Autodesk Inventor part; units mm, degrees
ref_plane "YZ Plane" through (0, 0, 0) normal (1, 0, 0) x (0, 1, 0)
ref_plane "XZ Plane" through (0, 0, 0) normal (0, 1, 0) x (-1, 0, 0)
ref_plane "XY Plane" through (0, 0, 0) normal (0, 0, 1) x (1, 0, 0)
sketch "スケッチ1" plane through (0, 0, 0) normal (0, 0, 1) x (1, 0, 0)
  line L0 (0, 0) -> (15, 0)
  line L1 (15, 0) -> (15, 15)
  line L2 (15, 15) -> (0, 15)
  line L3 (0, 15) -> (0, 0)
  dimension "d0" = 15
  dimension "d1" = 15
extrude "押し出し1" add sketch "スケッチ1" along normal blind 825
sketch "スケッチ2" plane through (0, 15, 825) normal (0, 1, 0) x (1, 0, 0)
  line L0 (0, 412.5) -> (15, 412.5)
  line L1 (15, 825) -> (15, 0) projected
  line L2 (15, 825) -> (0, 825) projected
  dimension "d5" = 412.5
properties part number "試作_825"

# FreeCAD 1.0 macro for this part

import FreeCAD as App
import Part
import Sketcher


def add_polygon(sketch, points):
    """Adds a closed chain of lines whose ends are joined by coincident constraints."""
    first, n = sketch.GeometryCount, len(points)
    for a, b in zip(points, points[1:] + points[:1]):
        sketch.addGeometry(Part.LineSegment(App.Vector(*a, 0), App.Vector(*b, 0)), False)
    for i in range(n):
        sketch.addConstraint(Sketcher.Constraint("Coincident", first + i, 2, first + (i + 1) % n, 1))

doc = App.newDocument("Part")
body = doc.addObject("PartDesign::Body", "Body")

# Sketch on XY plane
sketch1 = body.newObject("Sketcher::SketchObject", "Sketch")
sketch1.AttachmentSupport = (doc.getObject("XY_Plane"), [""])
sketch1.MapMode = "FlatFace"
add_polygon(sketch1, [(0, 15), (0, 0), (15, 0), (15, 15)])  # lines 0-3
sketch1.addConstraint(Sketcher.Constraint("Vertical", 0))
sketch1.addConstraint(Sketcher.Constraint("Horizontal", 1))
sketch1.addConstraint(Sketcher.Constraint("Vertical", 2))
sketch1.addConstraint(Sketcher.Constraint("Horizontal", 3))
sketch1.addConstraint(Sketcher.Constraint("Coincident", 0, 2, -1, 1))
sketch1.addConstraint(Sketcher.Constraint("Equal", 3, 0))
sketch1.addConstraint(Sketcher.Constraint("DistanceX", 1, 1, 1, 2, 15.0))
pad1 = body.newObject("PartDesign::Pad", "Pad")
pad1.Profile = sketch1
pad1.Length = 825

doc.recompute()
